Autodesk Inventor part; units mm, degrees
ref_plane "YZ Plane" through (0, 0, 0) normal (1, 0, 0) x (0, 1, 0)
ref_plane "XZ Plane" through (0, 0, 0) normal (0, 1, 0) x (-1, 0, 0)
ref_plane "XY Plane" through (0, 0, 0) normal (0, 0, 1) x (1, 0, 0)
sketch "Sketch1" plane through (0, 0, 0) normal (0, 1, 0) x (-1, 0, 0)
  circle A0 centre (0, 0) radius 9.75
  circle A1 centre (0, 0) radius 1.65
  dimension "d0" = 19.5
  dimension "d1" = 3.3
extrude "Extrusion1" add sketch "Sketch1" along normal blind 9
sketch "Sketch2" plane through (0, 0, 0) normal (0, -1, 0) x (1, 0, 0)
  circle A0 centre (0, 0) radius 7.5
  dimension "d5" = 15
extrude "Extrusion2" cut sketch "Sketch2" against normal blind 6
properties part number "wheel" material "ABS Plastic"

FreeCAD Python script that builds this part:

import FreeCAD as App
import Part
import Sketcher

V = App.Vector
Q = App.Units.Quantity

doc = App.newDocument("Part")
body = doc.addObject("PartDesign::Body", "Body")

# Sketch on XZ plane
sketch1 = doc.addObject("Sketcher::SketchObject", "Sketch")
body.addObject(sketch1)
sketch1.AttachmentSupport = (doc.XZ_Plane, [""])
sketch1.MapMode = "FlatFace"
sketch1.addGeometry(Part.Circle(V(0, 0, 0), V(0, 0, 1), 9.75), False)
sketch1.addGeometry(Part.Circle(V(0, 0, 0), V(0, 0, 1), 1.65), False)
sketch1.addConstraint(Sketcher.Constraint("Coincident", 0, 3, -1, 1))
sketch1.addConstraint(Sketcher.Constraint("Coincident", 1, 3, -1, 1))
sketch1.addConstraint(Sketcher.Constraint("Diameter", 0, Q("19.5 mm")))
sketch1.addConstraint(Sketcher.Constraint("Diameter", 1, Q("3.3 mm")))
pad1 = doc.addObject("PartDesign::Pad", "Pad")
body.addObject(pad1)
pad1.Profile = sketch1
pad1.Length = 9
pad1.Reversed = True

# Sketch on XZ plane
sketch2 = doc.addObject("Sketcher::SketchObject", "Sketch001")
body.addObject(sketch2)
sketch2.AttachmentSupport = (doc.XZ_Plane, [""])
sketch2.MapMode = "FlatFace"
sketch2.addGeometry(Part.Circle(V(0, 0, 0), V(0, 0, 1), 7.5), False)
sketch2.addConstraint(Sketcher.Constraint("Coincident", 0, 3, -1, 1))
sketch2.addConstraint(Sketcher.Constraint("Diameter", 0, Q("15 mm")))
pocket1 = doc.addObject("PartDesign::Pocket", "Pocket")
body.addObject(pocket1)
pocket1.Profile = sketch2
pocket1.Length = 6

doc.recompute()
